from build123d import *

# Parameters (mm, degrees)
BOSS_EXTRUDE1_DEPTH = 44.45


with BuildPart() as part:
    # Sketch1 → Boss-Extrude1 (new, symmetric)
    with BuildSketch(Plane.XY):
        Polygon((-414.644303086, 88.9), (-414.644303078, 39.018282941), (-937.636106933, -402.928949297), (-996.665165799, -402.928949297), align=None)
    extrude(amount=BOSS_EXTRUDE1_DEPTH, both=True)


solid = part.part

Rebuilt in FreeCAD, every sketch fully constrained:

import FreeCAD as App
import Part
import Sketcher

V = App.Vector
Q = App.Units.Quantity

doc = App.newDocument("Part")
body = doc.addObject("PartDesign::Body", "Body")

# Sketch on XY plane
sketch1 = body.newObject("Sketcher::SketchObject", "Sketch")
sketch1.AttachmentSupport = (doc.getObject("XY_Plane"), [""])
sketch1.MapMode = "FlatFace"
sketch1.addGeometry([
    Part.LineSegment(V(-415, 39, 0), V(-415, 89, 0)),
    Part.LineSegment(V(-415, 89, 0), V(-997, -403, 0)),
    Part.LineSegment(V(-997, -403, 0), V(-938, -403, 0)),
    Part.LineSegment(V(-938, -403, 0), V(-415, 39, 0)),
], False)
sketch1.addConstraint([
    Sketcher.Constraint("Coincident", 0, 2, 1, 1),
    Sketcher.Constraint("Coincident", 1, 2, 2, 1),
    Sketcher.Constraint("Coincident", 2, 2, 3, 1),
    Sketcher.Constraint("Coincident", 3, 2, 0, 1),
    Sketcher.Constraint("Vertical", 0),
    Sketcher.Constraint("Horizontal", 2),
    Sketcher.Constraint("Parallel", 1, 3),
    Sketcher.Constraint("Distance", 1, Q("30 in")),
    Sketcher.Constraint("DistanceY", -1, 1, 0, 2, Q("3.5 in")),
    Sketcher.Constraint("Distance", 3, 684.717302),
    Sketcher.Constraint("DistanceX", 2, 1, 2, 2, 59.029059),
    Sketcher.Constraint("DistanceX", 0, 2, -1, 1, 414.644303),
])
pad1 = body.newObject("PartDesign::Pad", "Pad")
pad1.Profile = sketch1
pad1.Length = Q("3.5 in")
pad1.Midplane = True

doc.recompute()
